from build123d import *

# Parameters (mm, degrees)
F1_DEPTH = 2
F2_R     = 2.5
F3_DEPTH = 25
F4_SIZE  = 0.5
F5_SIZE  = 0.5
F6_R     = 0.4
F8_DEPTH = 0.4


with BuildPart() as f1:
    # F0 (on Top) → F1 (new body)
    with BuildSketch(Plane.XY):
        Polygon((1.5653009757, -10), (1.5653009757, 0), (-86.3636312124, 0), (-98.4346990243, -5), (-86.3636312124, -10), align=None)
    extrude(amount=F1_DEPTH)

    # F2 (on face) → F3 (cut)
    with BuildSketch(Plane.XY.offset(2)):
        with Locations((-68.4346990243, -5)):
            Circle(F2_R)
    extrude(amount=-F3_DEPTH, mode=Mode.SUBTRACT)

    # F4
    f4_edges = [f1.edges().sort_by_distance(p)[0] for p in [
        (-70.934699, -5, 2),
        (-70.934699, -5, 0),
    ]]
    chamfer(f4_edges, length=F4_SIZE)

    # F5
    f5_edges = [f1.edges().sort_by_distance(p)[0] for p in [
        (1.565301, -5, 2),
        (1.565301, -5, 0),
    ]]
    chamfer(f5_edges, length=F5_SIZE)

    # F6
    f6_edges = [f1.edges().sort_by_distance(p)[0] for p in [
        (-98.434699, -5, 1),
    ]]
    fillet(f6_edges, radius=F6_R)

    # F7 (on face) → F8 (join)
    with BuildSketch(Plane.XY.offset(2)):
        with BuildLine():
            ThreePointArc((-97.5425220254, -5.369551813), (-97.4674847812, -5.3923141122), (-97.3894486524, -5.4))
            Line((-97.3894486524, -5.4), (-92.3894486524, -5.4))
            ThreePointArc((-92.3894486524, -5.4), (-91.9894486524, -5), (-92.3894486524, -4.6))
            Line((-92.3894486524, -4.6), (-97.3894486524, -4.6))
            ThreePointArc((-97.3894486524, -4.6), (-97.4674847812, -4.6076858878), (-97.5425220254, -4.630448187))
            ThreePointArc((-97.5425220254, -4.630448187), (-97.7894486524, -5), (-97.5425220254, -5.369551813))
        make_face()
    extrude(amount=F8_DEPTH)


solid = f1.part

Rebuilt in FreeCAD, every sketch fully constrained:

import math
import FreeCAD as App
import Part
import Sketcher
from FreeCAD import Vector
Q = App.Units.Quantity


def edges_at(feature, points):
    """Names of the edges that pass closest to the given points."""
    edges = feature.Shape.Edges
    near = lambda p: min(range(len(edges)), key=lambda i: edges[i].distToShape(Part.Vertex(*p))[0])
    return sorted({f"Edge{near(p) + 1}" for p in points})

doc = App.newDocument("Part")
body = doc.addObject("PartDesign::Body", "Body")

# Sketch on XY plane
sketch1 = body.newObject("Sketcher::SketchObject", "Sketch")
sketch1.AttachmentSupport = (doc.getObject("XY_Plane"), [""])
sketch1.MapMode = "FlatFace"
sketch1.addGeometry([
    Part.LineSegment(Vector(1.565301, -10, 0), Vector(1.565301, 0, 0)),  # 0
    Part.LineSegment(Vector(1.565301, 0, 0), Vector(-86.363631, 0, 0)),  # 1
    Part.LineSegment(Vector(-86.363631, 0, 0), Vector(-98.434699, -5, 0)),  # 2
    Part.LineSegment(Vector(-98.434699, -5, 0), Vector(-86.363631, -10, 0)),  # 3
    Part.LineSegment(Vector(-86.363631, -10, 0), Vector(1.565301, -10, 0)),  # 4
], False)
sketch1.addConstraint([
    Sketcher.Constraint("Coincident", 0, 2, 1, 1),
    Sketcher.Constraint("Coincident", 1, 2, 2, 1),
    Sketcher.Constraint("Coincident", 2, 2, 3, 1),
    Sketcher.Constraint("Coincident", 3, 2, 4, 1),
    Sketcher.Constraint("Coincident", 4, 2, 0, 1),
    Sketcher.Constraint("Vertical", 0),
    Sketcher.Constraint("Horizontal", 1),
    Sketcher.Constraint("Horizontal", 4),
    Sketcher.Constraint("PointOnObject", 0, 2, -1),
    Sketcher.Constraint("Vertical", 1, 2, 3, 2),
    Sketcher.Constraint("Equal", 2, 3),
    Sketcher.Constraint("DistanceY", 0, 1, 0, 2, Q("10 mm")),
    Sketcher.Constraint("Angle", 2, Q("-157.5 deg")),
    Sketcher.Constraint("DistanceX", 2, 2, 0, 2, Q("100 mm")),
    Sketcher.Constraint("DistanceX", -1, 1, 0, 2, Q("1.565301 mm")),
])
pad1 = body.newObject("PartDesign::Pad", "Pad")
pad1.Profile = sketch1
pad1.Length = 2

# Sketch on XY plane
sketch2 = body.newObject("Sketcher::SketchObject", "Sketch001")
sketch2.AttachmentSupport = (doc.getObject("XY_Plane"), [""])
sketch2.MapMode = "FlatFace"
sketch2.AttachmentOffset = App.Placement(Vector(0, 0, 2), App.Rotation())
sketch2.addGeometry(Part.Circle(Vector(-68.434699, -5, 0), Vector(0, 0, 1), 2.5), False)
sketch2.addConstraint([
    Sketcher.Constraint("Diameter", 0, Q("5 mm")),
    Sketcher.Constraint("DistanceY", 0, 3, -1, 1, Q("5 mm")),
    Sketcher.Constraint("DistanceX", 0, 3, -1, 1, Q("68.434699 mm")),
])
pocket1 = body.newObject("PartDesign::Pocket", "Pocket")
pocket1.Profile = sketch2
pocket1.Length = 25
doc.recompute()

chamfer = body.newObject("PartDesign::Chamfer", "Chamfer")
chamfer.Base = (pocket1, edges_at(pocket1, [(-70.935, -5, 2), (-70.935, -5, 0)]))
chamfer.Size = 0.5
doc.recompute()

chamfer2 = body.newObject("PartDesign::Chamfer", "Chamfer001")
chamfer2.Base = (chamfer, edges_at(chamfer, [(1.565, -5, 2), (1.565, -5, 0)]))
chamfer2.Size = 0.5
doc.recompute()

fillet = body.newObject("PartDesign::Fillet", "Fillet")
fillet.Base = (chamfer2, edges_at(chamfer2, [(-98.435, -5, 1)]))
fillet.Radius = 0.4

# Sketch on XY plane
sketch3 = body.newObject("Sketcher::SketchObject", "Sketch002")
sketch3.AttachmentSupport = (doc.getObject("XY_Plane"), [""])
sketch3.MapMode = "FlatFace"
sketch3.AttachmentOffset = App.Placement(Vector(0, 0, 2), App.Rotation())
sketch3.addGeometry([
    Part.ArcOfCircle(Part.Circle(Vector(-97.389449, -5, 0), Vector(0, 0, 1), 0.4), math.radians(-112.5), math.radians(-90)),  # 0
    Part.LineSegment(Vector(-97.389449, -5.4, 0), Vector(-92.389449, -5.4, 0)),  # 1
    Part.ArcOfCircle(Part.Circle(Vector(-92.389449, -5, 0), Vector(0, 0, 1), 0.4), math.radians(-90), math.radians(90)),  # 2
    Part.LineSegment(Vector(-92.389449, -4.6, 0), Vector(-97.389449, -4.6, 0)),  # 3
    Part.ArcOfCircle(Part.Circle(Vector(-97.389449, -5, 0), Vector(0, 0, 1), 0.4), math.radians(90), math.radians(112.5)),  # 4
    Part.ArcOfCircle(Part.Circle(Vector(-97.389449, -5, 0), Vector(0, 0, 1), 0.4), math.radians(112.5), math.radians(247.5)),  # 5
], False)
sketch3.addConstraint([
    Sketcher.Constraint("Tangent", 0, 2, 1, 1),
    Sketcher.Constraint("Tangent", 1, 2, 2, 1),
    Sketcher.Constraint("Tangent", 2, 2, 3, 1),
    Sketcher.Constraint("Tangent", 3, 2, 4, 1),
    Sketcher.Constraint("Tangent", 4, 2, 5, 1),
    Sketcher.Constraint("Tangent", 5, 2, 0, 1),
    Sketcher.Constraint("Horizontal", 1),
    Sketcher.Constraint("Horizontal", 3),
    Sketcher.Constraint("Coincident", 4, 3, 0, 3),
    Sketcher.Constraint("Vertical", 4, 2, 5, 2),
    Sketcher.Constraint("Radius", 0, Q("0.4 mm")),
    Sketcher.Constraint("DistanceX", 1, 1, 1, 2, Q("5 mm")),
    Sketcher.Constraint("DistanceY", 0, 3, -1, 1, Q("5 mm")),
    Sketcher.Constraint("DistanceX", 0, 3, -1, 1, Q("97.389449 mm")),
    Sketcher.Constraint("DistanceY", 4, 2, -1, 1, Q("4.630448 mm")),
])
pad2 = body.newObject("PartDesign::Pad", "Pad001")
pad2.Profile = sketch3
pad2.Length = 0.4

doc.recompute()
